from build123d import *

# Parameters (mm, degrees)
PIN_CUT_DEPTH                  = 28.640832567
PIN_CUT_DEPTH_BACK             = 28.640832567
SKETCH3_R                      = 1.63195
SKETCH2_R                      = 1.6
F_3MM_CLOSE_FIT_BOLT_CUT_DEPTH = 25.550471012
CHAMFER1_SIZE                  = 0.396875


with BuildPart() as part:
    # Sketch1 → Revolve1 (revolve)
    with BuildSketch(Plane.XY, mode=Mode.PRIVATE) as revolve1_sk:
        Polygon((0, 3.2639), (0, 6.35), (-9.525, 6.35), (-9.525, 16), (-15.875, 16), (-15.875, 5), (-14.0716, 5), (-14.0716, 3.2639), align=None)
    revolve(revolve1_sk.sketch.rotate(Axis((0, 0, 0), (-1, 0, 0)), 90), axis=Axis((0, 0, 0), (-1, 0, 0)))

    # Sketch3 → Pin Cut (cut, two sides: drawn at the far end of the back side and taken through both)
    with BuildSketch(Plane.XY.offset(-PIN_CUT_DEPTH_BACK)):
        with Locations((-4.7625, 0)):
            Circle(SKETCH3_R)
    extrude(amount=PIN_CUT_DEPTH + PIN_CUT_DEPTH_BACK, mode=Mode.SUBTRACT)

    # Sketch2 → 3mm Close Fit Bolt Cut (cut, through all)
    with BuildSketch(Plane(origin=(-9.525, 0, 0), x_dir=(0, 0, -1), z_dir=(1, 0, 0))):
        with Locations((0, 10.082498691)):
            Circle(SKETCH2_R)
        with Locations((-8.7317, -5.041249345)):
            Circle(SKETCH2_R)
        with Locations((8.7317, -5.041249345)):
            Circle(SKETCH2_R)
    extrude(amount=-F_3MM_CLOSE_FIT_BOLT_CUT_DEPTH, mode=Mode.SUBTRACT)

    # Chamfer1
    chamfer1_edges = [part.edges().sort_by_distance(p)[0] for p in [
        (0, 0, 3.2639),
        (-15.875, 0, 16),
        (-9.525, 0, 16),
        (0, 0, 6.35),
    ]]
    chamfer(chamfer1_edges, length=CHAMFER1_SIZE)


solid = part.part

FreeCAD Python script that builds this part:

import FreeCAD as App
import Part
import Sketcher

V = App.Vector
Q = App.Units.Quantity


def edges_at(feature, points):
    """Names of the edges that pass closest to the given points."""
    edges = feature.Shape.Edges
    near = lambda p: min(range(len(edges)), key=lambda i: edges[i].distToShape(Part.Vertex(*p))[0])
    return sorted({f"Edge{near(p) + 1}" for p in points})


def add_polygon(sketch, points):
    """Adds a closed chain of lines whose ends are joined by coincident constraints."""
    first, n = sketch.GeometryCount, len(points)
    for a, b in zip(points, points[1:] + points[:1]):
        sketch.addGeometry(Part.LineSegment(App.Vector(*a, 0), App.Vector(*b, 0)), False)
    for i in range(n):
        sketch.addConstraint(Sketcher.Constraint("Coincident", first + i, 2, first + (i + 1) % n, 1))

doc = App.newDocument("Part")
body = doc.addObject("PartDesign::Body", "Body")

# Sketch on XY plane
sketch1 = body.newObject("Sketcher::SketchObject", "Sketch")
sketch1.AttachmentSupport = (doc.getObject("XY_Plane"), [""])
sketch1.MapMode = "FlatFace"
add_polygon(sketch1, [(0, 3.3), (0, 6.3), (-9.5, 6.3), (-9.5, 16), (-15.9, 16), (-15.9, 5), (-14.1, 5), (-14.1, 3.3)])  # lines 0-7
sketch1.addConstraint(Sketcher.Constraint("Vertical", 0))
sketch1.addConstraint(Sketcher.Constraint("Horizontal", 1))
sketch1.addConstraint(Sketcher.Constraint("Vertical", 2))
sketch1.addConstraint(Sketcher.Constraint("Horizontal", 3))
sketch1.addConstraint(Sketcher.Constraint("Vertical", 4))
sketch1.addConstraint(Sketcher.Constraint("Horizontal", 5))
sketch1.addConstraint(Sketcher.Constraint("Vertical", 6))
sketch1.addConstraint(Sketcher.Constraint("Horizontal", 7))
sketch1.addConstraint(Sketcher.Constraint("PointOnObject", 0, 2, -2))
sketch1.addConstraint(Sketcher.Constraint("DistanceX", 3, 2, 3, 1, Q("0.25 in")))
sketch1.addConstraint(Sketcher.Constraint("DistanceX", 1, 2, 1, 1, Q("0.375 in")))
sketch1.addConstraint(Sketcher.Constraint("DistanceX", 5, 1, 5, 2, Q("0.071 in")))
sketch1.addConstraint(Sketcher.Constraint("DistanceY", -1, 1, 0, 2, Q("0.25 in")))
sketch1.addConstraint(Sketcher.Constraint("DistanceY", 0, 1, 0, 2, Q("0.1215 in")))
sketch1.addConstraint(Sketcher.Constraint("DistanceY", 2, 1, 2, 2, 9.65))
sketch1.addConstraint(Sketcher.Constraint("DistanceY", 4, 2, 4, 1, 11.0))
revolution = body.newObject("PartDesign::Revolution", "Revolution")
revolution.Profile = sketch1
revolution.ReferenceAxis = (sketch1, ["H_Axis"])
revolution.Angle = 360

# Sketch on XY plane
sketch2 = body.newObject("Sketcher::SketchObject", "Sketch001")
sketch2.AttachmentSupport = (doc.getObject("XY_Plane"), [""])
sketch2.MapMode = "FlatFace"
sketch2.addGeometry(Part.Circle(V(-4.8, 0, 0), V(0, 0, 1), 1.6), False)
sketch2.addConstraint(Sketcher.Constraint("PointOnObject", 0, 3, -1))
sketch2.addConstraint(Sketcher.Constraint("Diameter", 0, Q("0.1285 in")))
sketch2.addConstraint(Sketcher.Constraint("DistanceX", 0, 3, -1, 1, Q("0.1875 in")))
pocket1 = body.newObject("PartDesign::Pocket", "Pocket")
pocket1.Profile = sketch2
pocket1.Type = "ThroughAll"
pocket1.Midplane = True

# Sketch on YZ plane
sketch3 = body.newObject("Sketcher::SketchObject", "Sketch002")
sketch3.AttachmentSupport = (doc.getObject("YZ_Plane"), [""])
sketch3.MapMode = "FlatFace"
sketch3.AttachmentOffset = App.Placement(V(0, 0, -0.375 * 25.4), App.Rotation())
sketch3.addGeometry(Part.Circle(V(10.1, 0, 0), V(0, 0, 1), 1.6), False)
sketch3.addGeometry(Part.Circle(V(-5, 8.7, 0), V(0, 0, 1), 1.6), False)
sketch3.addGeometry(Part.Circle(V(-5, -8.7, 0), V(0, 0, 1), 1.6), False)
sketch3.addConstraint(Sketcher.Constraint("Equal", 0, 1))
sketch3.addConstraint(Sketcher.Constraint("Equal", 1, 2))
sketch3.addConstraint(Sketcher.Constraint("Symmetric", 1, 3, 2, 3, -1))
sketch3.addConstraint(Sketcher.Constraint("PointOnObject", 0, 3, -1))
sketch3.addConstraint(Sketcher.Constraint("Diameter", 0, 3.2))
sketch3.addConstraint(Sketcher.Constraint("DistanceX", -1, 1, 0, 3, 10.082499))
sketch3.addConstraint(Sketcher.Constraint("DistanceY", -1, 1, 1, 3, 8.7317))
sketch3.addConstraint(Sketcher.Constraint("DistanceX", 1, 3, -1, 1, 5.041249))
pocket2 = body.newObject("PartDesign::Pocket", "Pocket001")
pocket2.Profile = sketch3
pocket2.Type = "ThroughAll"
doc.recompute()

chamfer = body.newObject("PartDesign::Chamfer", "Chamfer")
chamfer.Base = (pocket2, edges_at(pocket2, [
    (0, 0, 3.264),
    (-15.875, 0, 16),
    (-9.525, 0, 16),
    (0, 0, 6.35),
]))
chamfer.Size = Q("0.015625 in")

doc.recompute()
